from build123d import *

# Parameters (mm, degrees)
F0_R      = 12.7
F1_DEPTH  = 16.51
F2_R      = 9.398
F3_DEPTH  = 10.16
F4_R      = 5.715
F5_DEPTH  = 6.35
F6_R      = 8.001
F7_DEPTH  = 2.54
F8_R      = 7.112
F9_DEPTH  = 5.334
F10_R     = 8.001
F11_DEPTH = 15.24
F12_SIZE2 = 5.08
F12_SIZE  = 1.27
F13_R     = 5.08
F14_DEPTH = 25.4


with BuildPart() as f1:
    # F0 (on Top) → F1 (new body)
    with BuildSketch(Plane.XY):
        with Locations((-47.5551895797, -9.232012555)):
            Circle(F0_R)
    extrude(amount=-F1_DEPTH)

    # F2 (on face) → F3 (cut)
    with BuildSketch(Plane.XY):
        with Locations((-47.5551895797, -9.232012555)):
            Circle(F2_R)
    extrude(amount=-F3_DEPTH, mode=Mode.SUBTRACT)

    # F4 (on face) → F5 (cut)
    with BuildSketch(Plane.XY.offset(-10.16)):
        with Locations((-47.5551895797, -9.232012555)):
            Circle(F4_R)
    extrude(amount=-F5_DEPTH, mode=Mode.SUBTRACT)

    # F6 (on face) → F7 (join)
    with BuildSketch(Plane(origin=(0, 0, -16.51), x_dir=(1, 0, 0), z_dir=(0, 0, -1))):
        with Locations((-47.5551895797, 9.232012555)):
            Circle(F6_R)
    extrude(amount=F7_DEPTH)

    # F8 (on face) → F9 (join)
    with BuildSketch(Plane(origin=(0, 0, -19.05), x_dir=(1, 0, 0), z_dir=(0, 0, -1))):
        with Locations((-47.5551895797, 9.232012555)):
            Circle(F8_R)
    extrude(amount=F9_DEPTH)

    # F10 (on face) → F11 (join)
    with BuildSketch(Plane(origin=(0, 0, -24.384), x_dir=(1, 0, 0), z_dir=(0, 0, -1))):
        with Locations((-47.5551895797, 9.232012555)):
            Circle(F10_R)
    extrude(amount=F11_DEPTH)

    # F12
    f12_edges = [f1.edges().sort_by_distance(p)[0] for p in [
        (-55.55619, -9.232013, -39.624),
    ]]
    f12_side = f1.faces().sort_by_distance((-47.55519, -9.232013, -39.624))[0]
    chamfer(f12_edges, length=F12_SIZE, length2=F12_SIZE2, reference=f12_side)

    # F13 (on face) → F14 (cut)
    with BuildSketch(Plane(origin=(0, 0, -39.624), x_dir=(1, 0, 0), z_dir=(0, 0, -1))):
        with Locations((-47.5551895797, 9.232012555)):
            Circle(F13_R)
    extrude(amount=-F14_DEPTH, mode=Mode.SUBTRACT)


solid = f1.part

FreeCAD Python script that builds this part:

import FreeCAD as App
import Part
import Sketcher

V = App.Vector
Q = App.Units.Quantity


def edges_at(feature, points):
    """Names of the edges that pass closest to the given points."""
    edges = feature.Shape.Edges
    near = lambda p: min(range(len(edges)), key=lambda i: edges[i].distToShape(Part.Vertex(*p))[0])
    return sorted({f"Edge{near(p) + 1}" for p in points})

doc = App.newDocument("Part")
body = doc.addObject("PartDesign::Body", "Body")

# Sketch on XY plane
sketch1 = body.newObject("Sketcher::SketchObject", "Sketch")
sketch1.AttachmentSupport = (doc.getObject("XY_Plane"), [""])
sketch1.MapMode = "FlatFace"
sketch1.addGeometry(Part.Circle(V(-48, -9, 0), V(0, 0, 1), 13), False)
sketch1.addConstraint(Sketcher.Constraint("Diameter", 0, Q("1 in")))
sketch1.addConstraint(Sketcher.Constraint("DistanceX", 0, 3, -1, 1, 47.55519))
sketch1.addConstraint(Sketcher.Constraint("DistanceY", 0, 3, -1, 1, 9.232013))
pad1 = body.newObject("PartDesign::Pad", "Pad")
pad1.Profile = sketch1
pad1.Length = Q("0.65 in")
pad1.Reversed = True

# Sketch on XY plane
sketch2 = body.newObject("Sketcher::SketchObject", "Sketch001")
sketch2.AttachmentSupport = (doc.getObject("XY_Plane"), [""])
sketch2.MapMode = "FlatFace"
sketch2.addGeometry(Part.Circle(V(-48, -9, 0), V(0, 0, 1), 9), False)
sketch2.addConstraint(Sketcher.Constraint("Diameter", 0, Q("0.74 in")))
sketch2.addConstraint(Sketcher.Constraint("DistanceX", 0, 3, -1, 1, 47.55519))
sketch2.addConstraint(Sketcher.Constraint("DistanceY", 0, 3, -1, 1, 9.232013))
pocket1 = body.newObject("PartDesign::Pocket", "Pocket")
pocket1.Profile = sketch2
pocket1.Length = Q("0.4 in")

# Sketch on XY plane
sketch3 = body.newObject("Sketcher::SketchObject", "Sketch002")
sketch3.AttachmentSupport = (doc.getObject("XY_Plane"), [""])
sketch3.MapMode = "FlatFace"
sketch3.AttachmentOffset = App.Placement(V(0, 0, -0.4 * 25.4), App.Rotation())
sketch3.addGeometry(Part.Circle(V(-48, -9, 0), V(0, 0, 1), 6), False)
sketch3.addConstraint(Sketcher.Constraint("Diameter", 0, Q("0.45 in")))
sketch3.addConstraint(Sketcher.Constraint("DistanceX", 0, 3, -1, 1, 47.55519))
sketch3.addConstraint(Sketcher.Constraint("DistanceY", 0, 3, -1, 1, 9.232013))
pocket2 = body.newObject("PartDesign::Pocket", "Pocket001")
pocket2.Profile = sketch3
pocket2.Length = Q("0.25 in")

# Sketch on XY plane
sketch4 = body.newObject("Sketcher::SketchObject", "Sketch003")
sketch4.AttachmentSupport = (doc.getObject("XY_Plane"), [""])
sketch4.MapMode = "FlatFace"
sketch4.AttachmentOffset = App.Placement(V(0, 0, -0.65 * 25.4), App.Rotation())
sketch4.addGeometry(Part.Circle(V(-48, -9, 0), V(0, 0, 1), 8), False)
sketch4.addConstraint(Sketcher.Constraint("Diameter", 0, Q("0.63 in")))
sketch4.addConstraint(Sketcher.Constraint("DistanceX", 0, 3, -1, 1, 47.55519))
sketch4.addConstraint(Sketcher.Constraint("DistanceY", 0, 3, -1, 1, 9.232013))
pad2 = body.newObject("PartDesign::Pad", "Pad001")
pad2.Profile = sketch4
pad2.Length = Q("0.1 in")
pad2.Reversed = True

# Sketch on XY plane
sketch5 = body.newObject("Sketcher::SketchObject", "Sketch004")
sketch5.AttachmentSupport = (doc.getObject("XY_Plane"), [""])
sketch5.MapMode = "FlatFace"
sketch5.AttachmentOffset = App.Placement(V(0, 0, -0.75 * 25.4), App.Rotation())
sketch5.addGeometry(Part.Circle(V(-48, -9, 0), V(0, 0, 1), 7), False)
sketch5.addConstraint(Sketcher.Constraint("Diameter", 0, Q("0.56 in")))
sketch5.addConstraint(Sketcher.Constraint("DistanceX", 0, 3, -1, 1, 47.55519))
sketch5.addConstraint(Sketcher.Constraint("DistanceY", 0, 3, -1, 1, 9.232013))
pad3 = body.newObject("PartDesign::Pad", "Pad002")
pad3.Profile = sketch5
pad3.Length = Q("0.21 in")
pad3.Reversed = True

# Sketch on XY plane
sketch6 = body.newObject("Sketcher::SketchObject", "Sketch005")
sketch6.AttachmentSupport = (doc.getObject("XY_Plane"), [""])
sketch6.MapMode = "FlatFace"
sketch6.AttachmentOffset = App.Placement(V(0, 0, -0.96 * 25.4), App.Rotation())
sketch6.addGeometry(Part.Circle(V(-48, -9, 0), V(0, 0, 1), 8), False)
sketch6.addConstraint(Sketcher.Constraint("Diameter", 0, Q("0.63 in")))
sketch6.addConstraint(Sketcher.Constraint("DistanceX", 0, 3, -1, 1, 47.55519))
sketch6.addConstraint(Sketcher.Constraint("DistanceY", 0, 3, -1, 1, 9.232013))
pad4 = body.newObject("PartDesign::Pad", "Pad003")
pad4.Profile = sketch6
pad4.Length = Q("0.6 in")
pad4.Reversed = True
doc.recompute()

chamfer = body.newObject("PartDesign::Chamfer", "Chamfer")
chamfer.Base = (pad4, edges_at(pad4, [(-55.556, -9.232, -39.624)]))
chamfer.ChamferType = "Two distances"
chamfer.Size = Q("0.05 in")
chamfer.Size2 = Q("0.2 in")
chamfer.FlipDirection = True

# Sketch on XY plane
sketch7 = body.newObject("Sketcher::SketchObject", "Sketch006")
sketch7.AttachmentSupport = (doc.getObject("XY_Plane"), [""])
sketch7.MapMode = "FlatFace"
sketch7.AttachmentOffset = App.Placement(V(0, 0, -1.56 * 25.4), App.Rotation())
sketch7.addGeometry(Part.Circle(V(-48, -9, 0), V(0, 0, 1), 5), False)
sketch7.addConstraint(Sketcher.Constraint("Diameter", 0, Q("0.4 in")))
sketch7.addConstraint(Sketcher.Constraint("DistanceX", 0, 3, -1, 1, 47.55519))
sketch7.addConstraint(Sketcher.Constraint("DistanceY", 0, 3, -1, 1, 9.232013))
pocket3 = body.newObject("PartDesign::Pocket", "Pocket002")
pocket3.Profile = sketch7
pocket3.Length = Q("1 in")
pocket3.Reversed = True

doc.recompute()
